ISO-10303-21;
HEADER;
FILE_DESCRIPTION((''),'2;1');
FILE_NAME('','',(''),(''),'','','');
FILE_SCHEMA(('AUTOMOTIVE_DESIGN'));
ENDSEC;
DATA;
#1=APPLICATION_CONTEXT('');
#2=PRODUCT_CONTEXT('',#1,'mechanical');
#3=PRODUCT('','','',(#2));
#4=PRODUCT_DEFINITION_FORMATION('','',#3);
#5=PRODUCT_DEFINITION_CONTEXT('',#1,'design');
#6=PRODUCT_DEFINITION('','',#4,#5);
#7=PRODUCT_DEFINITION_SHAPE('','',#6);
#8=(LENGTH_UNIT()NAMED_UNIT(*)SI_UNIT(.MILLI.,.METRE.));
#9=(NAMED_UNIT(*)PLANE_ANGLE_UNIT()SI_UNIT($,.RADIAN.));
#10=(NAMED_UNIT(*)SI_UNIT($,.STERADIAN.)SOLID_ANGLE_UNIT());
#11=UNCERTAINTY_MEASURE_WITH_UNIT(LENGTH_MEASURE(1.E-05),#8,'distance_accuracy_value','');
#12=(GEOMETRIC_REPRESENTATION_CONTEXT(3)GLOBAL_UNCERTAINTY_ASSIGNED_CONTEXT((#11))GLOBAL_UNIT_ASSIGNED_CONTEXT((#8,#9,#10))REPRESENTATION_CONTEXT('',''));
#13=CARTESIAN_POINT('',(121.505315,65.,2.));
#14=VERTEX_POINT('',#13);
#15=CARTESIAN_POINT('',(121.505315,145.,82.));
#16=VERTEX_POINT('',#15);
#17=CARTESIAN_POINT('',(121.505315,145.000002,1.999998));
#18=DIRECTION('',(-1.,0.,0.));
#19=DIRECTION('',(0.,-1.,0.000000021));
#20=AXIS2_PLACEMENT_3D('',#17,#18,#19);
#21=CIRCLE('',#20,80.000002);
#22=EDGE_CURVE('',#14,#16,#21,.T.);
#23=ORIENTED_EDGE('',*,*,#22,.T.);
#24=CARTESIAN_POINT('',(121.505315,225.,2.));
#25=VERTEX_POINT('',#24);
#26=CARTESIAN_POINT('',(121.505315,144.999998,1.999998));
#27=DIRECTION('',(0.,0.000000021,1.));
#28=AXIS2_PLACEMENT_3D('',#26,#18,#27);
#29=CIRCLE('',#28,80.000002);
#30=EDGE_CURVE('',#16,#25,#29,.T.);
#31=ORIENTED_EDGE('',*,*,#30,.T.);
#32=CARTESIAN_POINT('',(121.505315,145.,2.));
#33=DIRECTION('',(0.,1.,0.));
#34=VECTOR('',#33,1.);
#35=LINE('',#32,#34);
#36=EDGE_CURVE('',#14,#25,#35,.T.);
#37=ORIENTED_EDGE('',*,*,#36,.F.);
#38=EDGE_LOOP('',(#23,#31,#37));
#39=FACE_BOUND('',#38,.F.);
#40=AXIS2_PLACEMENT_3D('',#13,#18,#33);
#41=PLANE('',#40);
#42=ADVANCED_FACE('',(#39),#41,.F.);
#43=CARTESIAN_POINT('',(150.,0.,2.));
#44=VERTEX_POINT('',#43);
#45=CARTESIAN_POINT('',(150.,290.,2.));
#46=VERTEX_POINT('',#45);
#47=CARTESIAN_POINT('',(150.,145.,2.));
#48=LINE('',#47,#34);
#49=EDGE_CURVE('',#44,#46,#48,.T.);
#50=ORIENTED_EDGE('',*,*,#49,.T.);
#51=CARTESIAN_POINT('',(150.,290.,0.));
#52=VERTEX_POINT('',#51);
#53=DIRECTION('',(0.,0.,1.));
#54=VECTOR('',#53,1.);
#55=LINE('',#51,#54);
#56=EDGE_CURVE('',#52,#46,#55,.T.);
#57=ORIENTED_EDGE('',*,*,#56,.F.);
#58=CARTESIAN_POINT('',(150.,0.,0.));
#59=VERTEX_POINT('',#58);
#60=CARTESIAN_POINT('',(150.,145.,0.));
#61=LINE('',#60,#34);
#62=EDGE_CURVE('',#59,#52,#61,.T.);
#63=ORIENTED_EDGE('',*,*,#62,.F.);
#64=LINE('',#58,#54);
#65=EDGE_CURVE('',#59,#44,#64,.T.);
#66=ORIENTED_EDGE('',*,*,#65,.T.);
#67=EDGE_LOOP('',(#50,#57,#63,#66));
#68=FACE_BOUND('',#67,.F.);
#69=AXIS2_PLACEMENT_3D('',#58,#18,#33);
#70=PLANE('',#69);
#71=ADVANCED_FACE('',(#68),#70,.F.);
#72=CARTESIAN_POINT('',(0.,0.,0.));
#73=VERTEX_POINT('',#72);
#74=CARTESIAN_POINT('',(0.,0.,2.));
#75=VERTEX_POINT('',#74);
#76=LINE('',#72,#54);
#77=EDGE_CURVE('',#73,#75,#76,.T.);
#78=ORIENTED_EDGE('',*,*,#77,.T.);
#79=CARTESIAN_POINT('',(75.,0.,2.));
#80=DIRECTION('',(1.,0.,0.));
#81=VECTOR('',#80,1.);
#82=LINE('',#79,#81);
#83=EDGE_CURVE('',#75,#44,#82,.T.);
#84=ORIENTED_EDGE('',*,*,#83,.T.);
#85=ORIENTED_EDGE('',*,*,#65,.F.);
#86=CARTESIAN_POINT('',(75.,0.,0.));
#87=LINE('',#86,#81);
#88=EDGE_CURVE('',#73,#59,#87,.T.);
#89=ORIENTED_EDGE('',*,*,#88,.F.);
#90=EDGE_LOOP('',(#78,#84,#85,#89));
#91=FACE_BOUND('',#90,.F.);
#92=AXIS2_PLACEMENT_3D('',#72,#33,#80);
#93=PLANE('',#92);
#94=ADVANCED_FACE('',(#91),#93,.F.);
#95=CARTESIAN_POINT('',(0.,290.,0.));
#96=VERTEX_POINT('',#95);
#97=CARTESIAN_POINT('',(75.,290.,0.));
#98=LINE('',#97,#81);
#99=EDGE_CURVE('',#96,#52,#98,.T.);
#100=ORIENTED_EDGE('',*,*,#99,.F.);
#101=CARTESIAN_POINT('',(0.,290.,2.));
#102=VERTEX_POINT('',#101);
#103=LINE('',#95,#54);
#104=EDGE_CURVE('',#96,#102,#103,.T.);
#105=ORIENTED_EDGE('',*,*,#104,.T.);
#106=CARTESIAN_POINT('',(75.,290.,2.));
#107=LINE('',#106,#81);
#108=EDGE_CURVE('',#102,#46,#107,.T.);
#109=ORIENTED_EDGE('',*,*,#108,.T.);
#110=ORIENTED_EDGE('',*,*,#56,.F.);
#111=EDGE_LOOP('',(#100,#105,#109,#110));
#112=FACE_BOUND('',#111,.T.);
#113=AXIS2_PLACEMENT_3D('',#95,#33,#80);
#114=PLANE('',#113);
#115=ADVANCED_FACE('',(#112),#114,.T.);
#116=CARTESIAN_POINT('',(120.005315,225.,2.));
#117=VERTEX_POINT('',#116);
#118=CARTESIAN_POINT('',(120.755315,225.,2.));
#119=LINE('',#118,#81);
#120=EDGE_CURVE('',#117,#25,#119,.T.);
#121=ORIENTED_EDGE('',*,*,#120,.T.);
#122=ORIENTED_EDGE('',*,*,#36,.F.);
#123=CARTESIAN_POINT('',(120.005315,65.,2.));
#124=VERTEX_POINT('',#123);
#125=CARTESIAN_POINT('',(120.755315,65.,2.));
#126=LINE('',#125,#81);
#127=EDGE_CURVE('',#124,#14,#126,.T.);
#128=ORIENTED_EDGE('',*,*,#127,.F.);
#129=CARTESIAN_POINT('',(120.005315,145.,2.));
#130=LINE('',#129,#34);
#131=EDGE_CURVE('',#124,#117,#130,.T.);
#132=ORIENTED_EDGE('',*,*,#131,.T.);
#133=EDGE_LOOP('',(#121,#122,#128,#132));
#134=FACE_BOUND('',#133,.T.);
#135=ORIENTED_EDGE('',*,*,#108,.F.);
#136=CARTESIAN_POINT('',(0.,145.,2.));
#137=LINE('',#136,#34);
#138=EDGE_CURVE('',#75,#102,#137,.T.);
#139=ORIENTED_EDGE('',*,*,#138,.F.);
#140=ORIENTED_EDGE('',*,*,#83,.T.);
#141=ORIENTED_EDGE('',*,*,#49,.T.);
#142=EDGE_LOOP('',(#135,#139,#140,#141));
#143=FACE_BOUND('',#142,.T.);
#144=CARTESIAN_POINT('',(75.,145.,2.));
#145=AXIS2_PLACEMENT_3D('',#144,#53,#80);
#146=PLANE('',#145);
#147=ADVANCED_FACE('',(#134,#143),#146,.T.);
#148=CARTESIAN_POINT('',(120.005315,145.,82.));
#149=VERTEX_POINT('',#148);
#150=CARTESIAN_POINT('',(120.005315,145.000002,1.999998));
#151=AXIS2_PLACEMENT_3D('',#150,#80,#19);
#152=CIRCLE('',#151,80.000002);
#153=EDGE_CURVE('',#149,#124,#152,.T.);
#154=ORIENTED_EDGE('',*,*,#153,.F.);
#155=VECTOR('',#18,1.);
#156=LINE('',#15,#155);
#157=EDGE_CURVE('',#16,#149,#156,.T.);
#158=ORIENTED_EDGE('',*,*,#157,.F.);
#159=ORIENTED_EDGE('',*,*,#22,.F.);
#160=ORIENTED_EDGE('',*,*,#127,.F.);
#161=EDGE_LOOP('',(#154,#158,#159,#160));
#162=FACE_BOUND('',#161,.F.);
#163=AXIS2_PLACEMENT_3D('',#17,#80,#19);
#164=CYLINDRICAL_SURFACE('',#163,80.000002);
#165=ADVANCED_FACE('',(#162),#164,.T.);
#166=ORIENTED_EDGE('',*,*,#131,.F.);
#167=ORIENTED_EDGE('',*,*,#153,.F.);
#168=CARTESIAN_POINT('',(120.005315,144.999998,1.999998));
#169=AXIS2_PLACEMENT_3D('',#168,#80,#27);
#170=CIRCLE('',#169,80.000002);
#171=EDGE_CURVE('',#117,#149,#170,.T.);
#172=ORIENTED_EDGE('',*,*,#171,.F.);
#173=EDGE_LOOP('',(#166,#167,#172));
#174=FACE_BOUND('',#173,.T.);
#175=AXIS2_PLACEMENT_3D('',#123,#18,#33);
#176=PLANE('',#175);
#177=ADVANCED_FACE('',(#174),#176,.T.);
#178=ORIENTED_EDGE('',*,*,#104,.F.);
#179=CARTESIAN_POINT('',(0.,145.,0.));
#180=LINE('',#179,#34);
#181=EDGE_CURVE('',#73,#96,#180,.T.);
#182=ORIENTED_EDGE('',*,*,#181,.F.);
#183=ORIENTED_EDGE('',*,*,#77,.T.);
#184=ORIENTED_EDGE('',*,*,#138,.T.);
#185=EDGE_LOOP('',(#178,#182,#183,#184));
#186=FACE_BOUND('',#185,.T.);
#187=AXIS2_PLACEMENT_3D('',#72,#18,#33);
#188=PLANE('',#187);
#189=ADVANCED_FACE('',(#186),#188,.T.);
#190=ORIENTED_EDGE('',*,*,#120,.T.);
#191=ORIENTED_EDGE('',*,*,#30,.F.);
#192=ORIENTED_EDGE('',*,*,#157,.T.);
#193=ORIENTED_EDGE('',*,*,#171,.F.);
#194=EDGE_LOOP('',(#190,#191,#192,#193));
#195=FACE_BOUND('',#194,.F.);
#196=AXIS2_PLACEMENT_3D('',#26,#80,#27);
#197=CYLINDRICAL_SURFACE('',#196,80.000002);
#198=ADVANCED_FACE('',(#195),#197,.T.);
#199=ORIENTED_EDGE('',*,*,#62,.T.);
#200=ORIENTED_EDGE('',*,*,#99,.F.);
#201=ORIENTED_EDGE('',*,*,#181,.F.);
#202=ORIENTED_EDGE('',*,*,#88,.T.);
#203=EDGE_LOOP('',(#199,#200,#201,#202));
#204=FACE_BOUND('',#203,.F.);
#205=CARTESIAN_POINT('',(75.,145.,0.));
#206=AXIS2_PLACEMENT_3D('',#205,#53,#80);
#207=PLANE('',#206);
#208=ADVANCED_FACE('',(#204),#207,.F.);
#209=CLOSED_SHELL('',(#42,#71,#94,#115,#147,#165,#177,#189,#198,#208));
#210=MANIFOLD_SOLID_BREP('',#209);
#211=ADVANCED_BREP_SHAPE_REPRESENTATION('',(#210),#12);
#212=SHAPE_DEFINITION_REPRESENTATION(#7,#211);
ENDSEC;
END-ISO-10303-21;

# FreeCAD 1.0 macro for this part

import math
import FreeCAD as App
import Part
import Sketcher

V = App.Vector


def add_polygon(sketch, points):
    """Adds a closed chain of lines whose ends are joined by coincident constraints."""
    first, n = sketch.GeometryCount, len(points)
    for a, b in zip(points, points[1:] + points[:1]):
        sketch.addGeometry(Part.LineSegment(App.Vector(*a, 0), App.Vector(*b, 0)), False)
    for i in range(n):
        sketch.addConstraint(Sketcher.Constraint("Coincident", first + i, 2, first + (i + 1) % n, 1))

doc = App.newDocument("Part")
params = doc.addObject("Spreadsheet::Sheet", "Params")
for row, (alias, value) in enumerate([
    ("sketch1_width", "150 mm"),
    ("sketch1_height", "290 mm"),
    ("pad1_length", "2 mm"),
    ("sketch2_height", "160 mm"),
    ("sketch2_width", "1.5 mm"),
    ("pad2_length", "80 mm"),
    ("sketch3_radius", "80.000002 mm"),
    ("pocket1_length", "25 mm"),
], start=1):
    params.set(f"A{row}", alias)
    params.set(f"B{row}", "=" + value)
    params.setAlias(f"B{row}", alias)

body = doc.addObject("PartDesign::Body", "Body")

# Sketch on XY plane
sketch1 = body.newObject("Sketcher::SketchObject", "Sketch")
sketch1.AttachmentSupport = (doc.getObject("XY_Plane"), [""])
sketch1.MapMode = "FlatFace"
add_polygon(sketch1, [(0, 290), (0, 0), (150, 0), (150, 290)])  # lines 0-3
sketch1.addConstraint([
    Sketcher.Constraint("Vertical", 0),
    Sketcher.Constraint("Horizontal", 1),
    Sketcher.Constraint("Vertical", 2),
    Sketcher.Constraint("Horizontal", 3),
    Sketcher.Constraint("Coincident", 0, 2, -1, 1),
    Sketcher.Constraint("DistanceX", 1, 1, 1, 2, 150.0),
    Sketcher.Constraint("DistanceY", 0, 2, 0, 1, 290.0),
])
sketch1.setExpression("Constraints[9]", "Params.sketch1_width")
sketch1.setExpression("Constraints[10]", "Params.sketch1_height")
pad1 = body.newObject("PartDesign::Pad", "Pad")
pad1.Profile = sketch1
pad1.setExpression("Length", "Params.pad1_length")

# Sketch on XY plane
sketch2 = body.newObject("Sketcher::SketchObject", "Sketch001")
sketch2.AttachmentSupport = (doc.getObject("XY_Plane"), [""])
sketch2.MapMode = "FlatFace"
sketch2.AttachmentOffset = App.Placement(V(0, 0, 2), App.Rotation())
add_polygon(sketch2, [(120, 225), (120, 65), (121.5, 65), (121.5, 225)])  # lines 0-3
sketch2.addConstraint([
    Sketcher.Constraint("Vertical", 0),
    Sketcher.Constraint("Horizontal", 1),
    Sketcher.Constraint("Vertical", 2),
    Sketcher.Constraint("Horizontal", 3),
    Sketcher.Constraint("DistanceY", 0, 2, 0, 1, 160.0),
    Sketcher.Constraint("DistanceX", 1, 1, 1, 2, 1.5),
    Sketcher.Constraint("DistanceY", -1, 1, 0, 2, 65.0),
    Sketcher.Constraint("DistanceX", -1, 1, 0, 2, 120.005315),
])
sketch2.setExpression("Constraints[8]", "Params.sketch2_height")
sketch2.setExpression("Constraints[9]", "Params.sketch2_width")
pad2 = body.newObject("PartDesign::Pad", "Pad001")
pad2.Profile = sketch2
pad2.setExpression("Length", "Params.pad2_length")

# Sketch on YZ plane
sketch3 = body.newObject("Sketcher::SketchObject", "Sketch002")
sketch3.AttachmentSupport = (doc.getObject("YZ_Plane"), [""])
sketch3.MapMode = "FlatFace"
sketch3.AttachmentOffset = App.Placement(V(0, 0, 121.505315), App.Rotation())
sketch3.addGeometry([
    Part.LineSegment(V(65, 82, 0), V(65, 2, 0)),  # 0
    Part.ArcOfCircle(Part.Circle(V(145, 2, 0), V(0, 0, 1), 80), math.radians(90), math.radians(180)),  # 1
    Part.LineSegment(V(145, 82, 0), V(65, 82, 0)),  # 2
    Part.ArcOfCircle(Part.Circle(V(145, 2, 0), V(0, 0, 1), 80), math.radians(0), math.radians(90)),  # 3
    Part.LineSegment(V(225, 2, 0), V(225, 82, 0)),  # 4
    Part.LineSegment(V(225, 82, 0), V(145, 82, 0)),  # 5
], False)
sketch3.addConstraint([
    Sketcher.Constraint("Tangent", 0, 2, 1, 2),
    Sketcher.Constraint("Tangent", 1, 1, 2, 1),
    Sketcher.Constraint("Coincident", 2, 2, 0, 1),
    Sketcher.Constraint("Tangent", 3, 1, 4, 1),
    Sketcher.Constraint("Coincident", 4, 2, 5, 1),
    Sketcher.Constraint("Tangent", 5, 2, 3, 2),
    Sketcher.Constraint("Vertical", 0),
    Sketcher.Constraint("Horizontal", 2),
    Sketcher.Constraint("Vertical", 4),
    Sketcher.Constraint("Horizontal", 5),
    Sketcher.Constraint("Coincident", 3, 3, 1, 3),
    Sketcher.Constraint("Equal", 1, 3),
    Sketcher.Constraint("Radius", 1, 80.000002),
    Sketcher.Constraint("DistanceX", -1, 1, 1, 3, 145.000002),
    Sketcher.Constraint("DistanceY", -1, 1, 1, 3, 1.999998),
])
sketch3.setExpression("Constraints[12]", "Params.sketch3_radius")
pocket1 = body.newObject("PartDesign::Pocket", "Pocket")
pocket1.Profile = sketch3
pocket1.setExpression("Length", "Params.pocket1_length")

doc.recompute()
